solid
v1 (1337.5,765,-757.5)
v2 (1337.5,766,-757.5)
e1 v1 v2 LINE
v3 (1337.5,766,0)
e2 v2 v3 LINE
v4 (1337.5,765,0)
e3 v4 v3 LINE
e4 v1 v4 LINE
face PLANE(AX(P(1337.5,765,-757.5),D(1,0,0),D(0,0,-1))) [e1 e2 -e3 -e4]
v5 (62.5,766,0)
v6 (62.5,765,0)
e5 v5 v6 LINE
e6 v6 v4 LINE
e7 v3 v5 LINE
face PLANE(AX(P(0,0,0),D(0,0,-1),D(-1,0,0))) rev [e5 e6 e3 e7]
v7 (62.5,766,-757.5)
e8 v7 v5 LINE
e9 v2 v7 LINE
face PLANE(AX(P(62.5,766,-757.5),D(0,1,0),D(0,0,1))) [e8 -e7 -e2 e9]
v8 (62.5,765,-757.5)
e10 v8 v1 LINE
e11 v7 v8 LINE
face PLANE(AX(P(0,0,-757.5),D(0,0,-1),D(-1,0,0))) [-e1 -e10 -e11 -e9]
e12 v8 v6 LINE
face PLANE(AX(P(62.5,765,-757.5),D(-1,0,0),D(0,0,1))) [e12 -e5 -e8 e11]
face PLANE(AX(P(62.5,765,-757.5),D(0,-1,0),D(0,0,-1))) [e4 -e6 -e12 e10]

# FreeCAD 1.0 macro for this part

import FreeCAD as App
import Part
import Sketcher

V = App.Vector


def add_polygon(sketch, points):
    """Adds a closed chain of lines whose ends are joined by coincident constraints."""
    first, n = sketch.GeometryCount, len(points)
    for a, b in zip(points, points[1:] + points[:1]):
        sketch.addGeometry(Part.LineSegment(App.Vector(*a, 0), App.Vector(*b, 0)), False)
    for i in range(n):
        sketch.addConstraint(Sketcher.Constraint("Coincident", first + i, 2, first + (i + 1) % n, 1))

doc = App.newDocument("Part")
body = doc.addObject("PartDesign::Body", "Body")

# Sketch on XY plane
sketch1 = doc.addObject("Sketcher::SketchObject", "Sketch")
body.addObject(sketch1)
sketch1.AttachmentSupport = (doc.XY_Plane, [""])
sketch1.MapMode = "FlatFace"
add_polygon(sketch1, [(62.5, 766), (62.5, 765), (1337.5, 765), (1337.5, 766)])  # lines 0-3
sketch1.addConstraint([
    Sketcher.Constraint("Vertical", 0),
    Sketcher.Constraint("Horizontal", 1),
    Sketcher.Constraint("Vertical", 2),
    Sketcher.Constraint("Horizontal", 3),
    Sketcher.Constraint("DistanceX", 1, 1, 1, 2, 1275.0),
    Sketcher.Constraint("DistanceY", 0, 2, 0, 1, 1.0),
    Sketcher.Constraint("DistanceY", -1, 1, 0, 2, 765.0),
    Sketcher.Constraint("DistanceX", -1, 1, 0, 2, 62.5),
])
pad1 = doc.addObject("PartDesign::Pad", "Pad")
body.addObject(pad1)
pad1.Profile = sketch1
pad1.Length = 757.5
pad1.Reversed = True

doc.recompute()
